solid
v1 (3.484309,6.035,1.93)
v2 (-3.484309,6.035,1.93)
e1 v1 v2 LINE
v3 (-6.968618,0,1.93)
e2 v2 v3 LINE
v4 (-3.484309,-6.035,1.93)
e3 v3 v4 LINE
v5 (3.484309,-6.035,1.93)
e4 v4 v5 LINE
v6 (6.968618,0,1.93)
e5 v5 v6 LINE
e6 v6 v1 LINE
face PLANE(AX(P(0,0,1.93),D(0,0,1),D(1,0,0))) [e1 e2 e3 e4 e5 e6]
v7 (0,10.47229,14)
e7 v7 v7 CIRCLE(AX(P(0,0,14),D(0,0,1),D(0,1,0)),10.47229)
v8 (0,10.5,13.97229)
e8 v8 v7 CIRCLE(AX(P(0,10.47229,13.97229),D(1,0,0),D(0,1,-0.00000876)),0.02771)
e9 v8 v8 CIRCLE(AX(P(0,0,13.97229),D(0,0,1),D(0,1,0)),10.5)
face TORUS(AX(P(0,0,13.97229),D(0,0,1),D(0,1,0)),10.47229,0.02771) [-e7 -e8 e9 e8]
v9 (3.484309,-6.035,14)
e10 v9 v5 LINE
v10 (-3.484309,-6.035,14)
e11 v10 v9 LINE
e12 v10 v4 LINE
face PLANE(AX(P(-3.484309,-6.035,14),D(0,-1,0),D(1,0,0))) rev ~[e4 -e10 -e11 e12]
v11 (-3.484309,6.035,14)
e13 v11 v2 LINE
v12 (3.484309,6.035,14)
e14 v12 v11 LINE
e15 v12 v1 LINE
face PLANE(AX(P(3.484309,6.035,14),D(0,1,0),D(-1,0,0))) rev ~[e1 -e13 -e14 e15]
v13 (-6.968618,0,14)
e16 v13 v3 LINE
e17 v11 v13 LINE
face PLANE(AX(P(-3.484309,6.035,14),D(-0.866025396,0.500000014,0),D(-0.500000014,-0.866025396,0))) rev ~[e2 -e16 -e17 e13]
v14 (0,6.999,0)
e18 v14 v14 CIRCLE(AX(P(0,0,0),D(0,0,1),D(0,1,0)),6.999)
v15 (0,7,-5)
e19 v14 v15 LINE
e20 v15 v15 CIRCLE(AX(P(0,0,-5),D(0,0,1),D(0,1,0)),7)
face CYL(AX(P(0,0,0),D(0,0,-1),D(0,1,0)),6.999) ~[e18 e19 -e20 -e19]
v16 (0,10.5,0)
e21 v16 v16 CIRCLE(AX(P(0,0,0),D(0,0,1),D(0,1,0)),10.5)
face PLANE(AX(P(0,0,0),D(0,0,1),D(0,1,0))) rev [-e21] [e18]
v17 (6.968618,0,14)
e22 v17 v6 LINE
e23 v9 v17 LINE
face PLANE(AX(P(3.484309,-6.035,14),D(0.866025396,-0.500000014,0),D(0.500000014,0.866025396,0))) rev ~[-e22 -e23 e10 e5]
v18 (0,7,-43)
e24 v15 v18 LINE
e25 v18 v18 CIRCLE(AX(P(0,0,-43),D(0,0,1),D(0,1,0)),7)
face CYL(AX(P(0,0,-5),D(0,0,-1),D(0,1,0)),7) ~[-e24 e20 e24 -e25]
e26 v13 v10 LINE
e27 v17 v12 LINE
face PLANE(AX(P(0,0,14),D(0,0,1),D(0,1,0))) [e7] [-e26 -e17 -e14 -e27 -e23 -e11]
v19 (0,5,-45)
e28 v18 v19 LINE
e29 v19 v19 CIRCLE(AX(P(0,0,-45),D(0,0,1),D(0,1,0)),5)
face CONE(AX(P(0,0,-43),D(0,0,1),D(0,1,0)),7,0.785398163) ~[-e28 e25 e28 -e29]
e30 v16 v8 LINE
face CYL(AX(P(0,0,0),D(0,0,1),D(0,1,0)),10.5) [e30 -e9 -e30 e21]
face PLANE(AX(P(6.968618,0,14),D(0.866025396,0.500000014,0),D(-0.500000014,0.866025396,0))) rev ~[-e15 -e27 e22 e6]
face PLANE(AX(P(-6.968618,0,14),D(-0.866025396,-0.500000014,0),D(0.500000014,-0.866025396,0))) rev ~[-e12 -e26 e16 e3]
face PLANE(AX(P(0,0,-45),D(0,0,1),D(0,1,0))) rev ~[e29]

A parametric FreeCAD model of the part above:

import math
import FreeCAD as App
import Part
import Sketcher

V = App.Vector
Q = App.Units.Quantity

doc = App.newDocument("Part")
body = doc.addObject("PartDesign::Body", "Body")

# Sketch on YZ plane
sketch1 = body.newObject("Sketcher::SketchObject", "Sketch")
sketch1.AttachmentSupport = (doc.getObject("YZ_Plane"), [""])
sketch1.MapMode = "FlatFace"
sketch1.addGeometry([
    Part.LineSegment(V(6.999, 0, 0), V(10.5, 0, 0)),  # 0
    Part.LineSegment(V(10.5, 0, 0), V(10.5, 13.972, 0)),  # 1
    Part.ArcOfCircle(Part.Circle(V(10.472, 13.972, 0), V(0, 0, 1), 0.028), math.radians(0), math.radians(90)),  # 2
    Part.LineSegment(V(10.472, 14, 0), V(0, 14, 0)),  # 3
    Part.LineSegment(V(0, 14, 0), V(0, -45, 0)),  # 4
    Part.LineSegment(V(0, -45, 0), V(5, -45, 0)),  # 5
    Part.LineSegment(V(5, -45, 0), V(7, -43, 0)),  # 6
    Part.LineSegment(V(7, -43, 0), V(7, -5, 0)),  # 7
    Part.LineSegment(V(7, -5, 0), V(6.999, 0, 0)),  # 8
], False)
sketch1.addConstraint([
    Sketcher.Constraint("Coincident", 0, 2, 1, 1),
    Sketcher.Constraint("Coincident", 1, 2, 2, 1),
    Sketcher.Constraint("Coincident", 2, 2, 3, 1),
    Sketcher.Constraint("Coincident", 3, 2, 4, 1),
    Sketcher.Constraint("Coincident", 4, 2, 5, 1),
    Sketcher.Constraint("Coincident", 5, 2, 6, 1),
    Sketcher.Constraint("Coincident", 6, 2, 7, 1),
    Sketcher.Constraint("Coincident", 7, 2, 8, 1),
    Sketcher.Constraint("Coincident", 8, 2, 0, 1),
    Sketcher.Constraint("Horizontal", 0),
    Sketcher.Constraint("Vertical", 1),
    Sketcher.Constraint("Horizontal", 3),
    Sketcher.Constraint("Vertical", 4),
    Sketcher.Constraint("Horizontal", 5),
    Sketcher.Constraint("Vertical", 7),
    Sketcher.Constraint("PointOnObject", 0, 2, -1),
    Sketcher.Constraint("PointOnObject", 3, 2, -2),
    Sketcher.Constraint("Horizontal", 2, 3, 1, 2),
    Sketcher.Constraint("DistanceX", 5, 1, 5, 2, Q("5 mm")),
    Sketcher.Constraint("DistanceY", 4, 2, 4, 1, Q("59 mm")),
    Sketcher.Constraint("DistanceY", 7, 1, 7, 2, Q("38 mm")),
    Sketcher.Constraint("Angle", 6, Q("45 deg")),
    Sketcher.Constraint("Distance", 8, Q("5 mm")),
    Sketcher.Constraint("DistanceY", -1, 1, 2, 2, Q("14 mm")),
    Sketcher.Constraint("DistanceX", -1, 1, 0, 2, Q("10.5 mm")),
    Sketcher.Constraint("DistanceX", 0, 1, 0, 2, Q("3.501 mm")),
    Sketcher.Constraint("Radius", 2, Q("0.02771 mm")),
    Sketcher.Constraint("DistanceX", 3, 2, 3, 1, Q("10.47229 mm")),
])
revolution = body.newObject("PartDesign::Revolution", "Revolution")
revolution.Profile = sketch1
revolution.ReferenceAxis = (sketch1, ["V_Axis"])
revolution.Angle = 360

# Sketch on XY plane
sketch2 = body.newObject("Sketcher::SketchObject", "Sketch001")
sketch2.AttachmentSupport = (doc.getObject("XY_Plane"), [""])
sketch2.MapMode = "FlatFace"
sketch2.AttachmentOffset = App.Placement(V(0, 0, 14), App.Rotation())
sketch2.addGeometry([
    Part.LineSegment(V(7, 0, 0), V(3, 6, 0)),  # 0
    Part.LineSegment(V(3, 6, 0), V(-3, 6, 0)),  # 1
    Part.LineSegment(V(-3, 6, 0), V(-7, 0, 0)),  # 2
    Part.LineSegment(V(-7, 0, 0), V(-3, -6, 0)),  # 3
    Part.LineSegment(V(-3, -6, 0), V(3, -6, 0)),  # 4
    Part.LineSegment(V(3, -6, 0), V(7, 0, 0)),  # 5
], False)
sketch2.addConstraint([
    Sketcher.Constraint("Coincident", 0, 2, 1, 1),
    Sketcher.Constraint("Coincident", 1, 2, 2, 1),
    Sketcher.Constraint("Coincident", 2, 2, 3, 1),
    Sketcher.Constraint("Coincident", 3, 2, 4, 1),
    Sketcher.Constraint("Coincident", 4, 2, 5, 1),
    Sketcher.Constraint("Coincident", 5, 2, 0, 1),
    Sketcher.Constraint("Horizontal", 1),
    Sketcher.Constraint("Horizontal", 4),
    Sketcher.Constraint("Symmetric", 0, 2, 3, 2, -1, 1),
    Sketcher.Constraint("Symmetric", 2, 2, 5, 2, -1, 1),
    Sketcher.Constraint("PointOnObject", 2, 2, -1),
    Sketcher.Constraint("Parallel", 2, 5),
    Sketcher.Constraint("Vertical", 1, 2, 3, 2),
    Sketcher.Constraint("Angle", 0, Q("120.000001 deg")),
    Sketcher.Constraint("DistanceY", 3, 2, 1, 2, Q("12.07 mm")),
    Sketcher.Constraint("DistanceX", 1, 2, 1, 1, Q("6.968618 mm")),
])
pocket1 = body.newObject("PartDesign::Pocket", "Pocket")
pocket1.Profile = sketch2
pocket1.Length = 12.07

doc.recompute()
